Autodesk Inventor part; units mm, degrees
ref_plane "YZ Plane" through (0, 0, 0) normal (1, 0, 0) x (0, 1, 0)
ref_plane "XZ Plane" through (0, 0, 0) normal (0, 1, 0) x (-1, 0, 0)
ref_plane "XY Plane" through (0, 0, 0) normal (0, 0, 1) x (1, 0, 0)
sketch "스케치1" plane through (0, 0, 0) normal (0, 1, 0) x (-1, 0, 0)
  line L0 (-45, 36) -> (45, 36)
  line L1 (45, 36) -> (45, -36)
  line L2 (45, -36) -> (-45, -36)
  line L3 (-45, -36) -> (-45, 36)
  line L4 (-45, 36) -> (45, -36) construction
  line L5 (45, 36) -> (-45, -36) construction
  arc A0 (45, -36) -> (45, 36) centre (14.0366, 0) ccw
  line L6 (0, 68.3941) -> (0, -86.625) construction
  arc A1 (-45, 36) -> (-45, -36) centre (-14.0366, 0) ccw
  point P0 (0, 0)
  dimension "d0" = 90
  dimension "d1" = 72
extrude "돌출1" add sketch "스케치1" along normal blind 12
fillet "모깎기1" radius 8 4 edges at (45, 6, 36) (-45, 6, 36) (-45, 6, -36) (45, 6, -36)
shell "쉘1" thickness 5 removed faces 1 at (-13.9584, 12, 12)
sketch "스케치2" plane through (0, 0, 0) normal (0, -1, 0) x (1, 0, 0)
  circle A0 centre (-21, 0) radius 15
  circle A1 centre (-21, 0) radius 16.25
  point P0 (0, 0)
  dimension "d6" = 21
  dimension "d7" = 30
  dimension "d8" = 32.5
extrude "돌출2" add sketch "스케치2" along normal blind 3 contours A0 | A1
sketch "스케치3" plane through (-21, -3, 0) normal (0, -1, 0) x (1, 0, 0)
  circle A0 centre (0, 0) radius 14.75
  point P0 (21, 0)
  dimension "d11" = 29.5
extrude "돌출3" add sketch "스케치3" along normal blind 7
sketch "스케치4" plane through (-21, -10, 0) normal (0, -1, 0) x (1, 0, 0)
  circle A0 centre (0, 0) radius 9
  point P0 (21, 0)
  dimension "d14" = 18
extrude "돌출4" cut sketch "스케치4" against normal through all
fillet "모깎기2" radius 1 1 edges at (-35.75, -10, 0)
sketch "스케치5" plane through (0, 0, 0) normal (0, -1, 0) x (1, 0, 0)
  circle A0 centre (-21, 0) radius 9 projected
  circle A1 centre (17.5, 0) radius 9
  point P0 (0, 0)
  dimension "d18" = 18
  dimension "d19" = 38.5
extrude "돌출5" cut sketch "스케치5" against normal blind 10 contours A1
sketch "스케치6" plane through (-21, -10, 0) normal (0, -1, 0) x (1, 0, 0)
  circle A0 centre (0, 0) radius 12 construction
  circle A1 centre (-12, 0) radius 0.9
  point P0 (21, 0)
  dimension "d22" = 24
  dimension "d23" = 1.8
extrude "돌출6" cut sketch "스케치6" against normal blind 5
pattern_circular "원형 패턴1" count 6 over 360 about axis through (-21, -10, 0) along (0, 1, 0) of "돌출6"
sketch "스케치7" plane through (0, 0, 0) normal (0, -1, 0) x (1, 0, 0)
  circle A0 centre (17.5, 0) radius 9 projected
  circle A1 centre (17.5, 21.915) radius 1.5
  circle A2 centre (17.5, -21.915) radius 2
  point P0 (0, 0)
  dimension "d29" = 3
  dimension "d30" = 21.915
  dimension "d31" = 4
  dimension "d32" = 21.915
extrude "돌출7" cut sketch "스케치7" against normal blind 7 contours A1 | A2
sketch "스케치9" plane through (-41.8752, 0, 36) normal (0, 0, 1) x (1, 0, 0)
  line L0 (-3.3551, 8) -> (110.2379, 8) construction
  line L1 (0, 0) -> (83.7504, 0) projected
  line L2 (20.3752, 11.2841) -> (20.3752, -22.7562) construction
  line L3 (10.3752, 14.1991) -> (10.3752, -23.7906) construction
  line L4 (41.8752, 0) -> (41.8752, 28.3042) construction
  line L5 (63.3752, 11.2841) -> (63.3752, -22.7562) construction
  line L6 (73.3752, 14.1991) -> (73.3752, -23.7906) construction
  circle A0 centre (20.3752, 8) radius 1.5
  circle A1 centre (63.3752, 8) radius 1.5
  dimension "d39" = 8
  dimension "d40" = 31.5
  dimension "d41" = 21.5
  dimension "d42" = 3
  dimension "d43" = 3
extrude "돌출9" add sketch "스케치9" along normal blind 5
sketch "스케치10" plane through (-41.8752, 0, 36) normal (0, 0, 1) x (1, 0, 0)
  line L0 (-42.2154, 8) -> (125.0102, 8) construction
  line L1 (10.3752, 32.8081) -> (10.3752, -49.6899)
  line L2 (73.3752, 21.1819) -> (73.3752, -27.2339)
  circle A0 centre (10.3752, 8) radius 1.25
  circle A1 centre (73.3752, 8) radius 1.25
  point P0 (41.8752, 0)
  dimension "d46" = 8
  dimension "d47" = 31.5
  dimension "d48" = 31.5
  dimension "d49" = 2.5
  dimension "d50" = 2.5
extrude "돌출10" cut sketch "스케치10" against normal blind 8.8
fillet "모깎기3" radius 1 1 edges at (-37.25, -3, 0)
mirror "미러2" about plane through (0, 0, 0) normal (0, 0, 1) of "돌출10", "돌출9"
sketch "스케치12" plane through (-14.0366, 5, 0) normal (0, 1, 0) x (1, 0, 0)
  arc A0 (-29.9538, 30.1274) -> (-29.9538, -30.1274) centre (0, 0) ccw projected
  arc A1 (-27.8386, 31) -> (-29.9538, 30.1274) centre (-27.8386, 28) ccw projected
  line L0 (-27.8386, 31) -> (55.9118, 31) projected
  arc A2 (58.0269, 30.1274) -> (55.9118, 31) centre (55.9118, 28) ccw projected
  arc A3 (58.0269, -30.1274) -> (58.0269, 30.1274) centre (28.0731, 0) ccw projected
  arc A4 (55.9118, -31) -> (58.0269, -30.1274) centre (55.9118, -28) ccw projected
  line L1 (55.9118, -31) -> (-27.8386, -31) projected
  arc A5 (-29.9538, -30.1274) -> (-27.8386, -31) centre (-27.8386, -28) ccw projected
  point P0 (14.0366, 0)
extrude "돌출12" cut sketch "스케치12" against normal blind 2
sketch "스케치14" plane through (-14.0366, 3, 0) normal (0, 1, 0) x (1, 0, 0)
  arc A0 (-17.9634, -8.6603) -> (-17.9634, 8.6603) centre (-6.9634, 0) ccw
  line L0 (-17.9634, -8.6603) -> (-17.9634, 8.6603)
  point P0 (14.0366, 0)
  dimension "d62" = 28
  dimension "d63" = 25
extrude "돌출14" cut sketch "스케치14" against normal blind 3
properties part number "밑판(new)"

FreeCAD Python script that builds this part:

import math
import FreeCAD as App
import Part
import Sketcher
from FreeCAD import Vector


def edges_at(feature, points):
    """Names of the edges that pass closest to the given points."""
    edges = feature.Shape.Edges
    near = lambda p: min(range(len(edges)), key=lambda i: edges[i].distToShape(Part.Vertex(*p))[0])
    return sorted({f"Edge{near(p) + 1}" for p in points})


def faces_at(feature, points):
    """Names of the faces that lie closest to the given points."""
    faces = feature.Shape.Faces
    near = lambda p: min(range(len(faces)), key=lambda i: faces[i].distToShape(Part.Vertex(*p))[0])
    return sorted({f"Face{near(p) + 1}" for p in points})

doc = App.newDocument("Part")
body = doc.addObject("PartDesign::Body", "Body")

sketch1 = body.newObject("Sketcher::SketchObject", "Sketch")
sketch1.AttachmentSupport = (doc.getObject("XZ_Plane"), [""])
sketch1.MapMode = "FlatFace"
sketch1.addGeometry([
    Part.LineSegment(Vector(-45, 36, 0), Vector(45, 36, 0)),
    Part.ArcOfCircle(Part.Circle(Vector(14, 0, 0), Vector(0, 0, 1), 47), math.radians(-49), math.radians(49)),
    Part.LineSegment(Vector(45, -36, 0), Vector(-45, -36, 0)),
    Part.ArcOfCircle(Part.Circle(Vector(-14, 0, 0), Vector(0, 0, 1), 47), math.radians(131), math.radians(229)),
], False)
sketch1.addConstraint([
    Sketcher.Constraint("Coincident", 0, 2, 1, 2),
    Sketcher.Constraint("Coincident", 1, 1, 2, 1),
    Sketcher.Constraint("Coincident", 2, 2, 3, 2),
    Sketcher.Constraint("Coincident", 3, 1, 0, 1),
    Sketcher.Constraint("Horizontal", 0),
    Sketcher.Constraint("Horizontal", 2),
    Sketcher.Constraint("Equal", 1, 3),
    Sketcher.Constraint("Symmetric", 1, 3, 3, 3, -1, 1),
    Sketcher.Constraint("Symmetric", 0, 2, 1, 1, -1),
    Sketcher.Constraint("DistanceX", 0, 1, 0, 2, 90.0),
    Sketcher.Constraint("DistanceY", 1, 1, 0, 2, 72.0),
    Sketcher.Constraint("Radius", 1, 47.484),
])
pad1 = body.newObject("PartDesign::Pad", "Pad")
pad1.Profile = sketch1
pad1.Length = 12
pad1.Reversed = True
doc.recompute()

fillet = body.newObject("PartDesign::Fillet", "Fillet")
fillet.Base = (pad1, edges_at(pad1, [
    (45, 6, 36),
    (-45, 6, 36),
    (-45, 6, -36),
    (45, 6, -36),
]))
fillet.Radius = 8
doc.recompute()

thickness = body.newObject("PartDesign::Thickness", "Thickness")
thickness.Base = (fillet, faces_at(fillet, [(-13.958, 12, 12)]))
thickness.Value = 5
thickness.Reversed = True
thickness.Join = "Intersection"

sketch2 = body.newObject("Sketcher::SketchObject", "Sketch001")
sketch2.AttachmentSupport = (doc.getObject("XZ_Plane"), [""])
sketch2.MapMode = "FlatFace"
sketch2.addGeometry(Part.Circle(Vector(-21, 0, 0), Vector(0, 0, 1), 16), False)
sketch2.addConstraint([
    Sketcher.Constraint("PointOnObject", 0, 3, -1),
    Sketcher.Constraint("Diameter", 0, 32.5),
    Sketcher.Constraint("DistanceX", 0, 3, -1, 1, 21.0),
])
pad2 = body.newObject("PartDesign::Pad", "Pad001")
pad2.Profile = sketch2
pad2.Length = 3

sketch3 = body.newObject("Sketcher::SketchObject", "Sketch002")
sketch3.AttachmentSupport = (doc.getObject("XZ_Plane"), [""])
sketch3.MapMode = "FlatFace"
sketch3.AttachmentOffset = App.Placement(Vector(0, 0, 3), App.Rotation())
sketch3.addGeometry(Part.Circle(Vector(-21, 0, 0), Vector(0, 0, 1), 15), False)
sketch3.addConstraint([
    Sketcher.Constraint("PointOnObject", 0, 3, -1),
    Sketcher.Constraint("Diameter", 0, 29.5),
    Sketcher.Constraint("DistanceX", 0, 3, -1, 1, 21.0),
])
pad3 = body.newObject("PartDesign::Pad", "Pad002")
pad3.Profile = sketch3
pad3.Length = 7

sketch4 = body.newObject("Sketcher::SketchObject", "Sketch003")
sketch4.AttachmentSupport = (doc.getObject("XZ_Plane"), [""])
sketch4.MapMode = "FlatFace"
sketch4.AttachmentOffset = App.Placement(Vector(0, 0, 10), App.Rotation())
sketch4.addGeometry(Part.Circle(Vector(-21, 0, 0), Vector(0, 0, 1), 9), False)
sketch4.addConstraint([
    Sketcher.Constraint("PointOnObject", 0, 3, -1),
    Sketcher.Constraint("Diameter", 0, 18.0),
    Sketcher.Constraint("DistanceX", 0, 3, -1, 1, 21.0),
])
pocket1 = body.newObject("PartDesign::Pocket", "Pocket")
pocket1.Profile = sketch4
pocket1.Type = "ThroughAll"
doc.recompute()

fillet2 = body.newObject("PartDesign::Fillet", "Fillet001")
fillet2.Base = (pocket1, edges_at(pocket1, [(-35.75, -10, 0)]))
fillet2.Radius = 1

sketch5 = body.newObject("Sketcher::SketchObject", "Sketch004")
sketch5.AttachmentSupport = (doc.getObject("XZ_Plane"), [""])
sketch5.MapMode = "FlatFace"
sketch5.addGeometry(Part.Circle(Vector(18, 0, 0), Vector(0, 0, 1), 9), False)
sketch5.addConstraint([
    Sketcher.Constraint("PointOnObject", 0, 3, -1),
    Sketcher.Constraint("Diameter", 0, 18.0),
    Sketcher.Constraint("DistanceX", -1, 1, 0, 3, 17.5),
])
pocket2 = body.newObject("PartDesign::Pocket", "Pocket001")
pocket2.Profile = sketch5
pocket2.Length = 10

sketch6 = body.newObject("Sketcher::SketchObject", "Sketch005")
sketch6.AttachmentSupport = (doc.getObject("XZ_Plane"), [""])
sketch6.MapMode = "FlatFace"
sketch6.AttachmentOffset = App.Placement(Vector(0, 0, 10), App.Rotation())
sketch6.addGeometry(Part.Circle(Vector(-33, 0, 0), Vector(0, 0, 1), 0.9), False)
sketch6.addConstraint([
    Sketcher.Constraint("PointOnObject", 0, 3, -1),
    Sketcher.Constraint("Diameter", 0, 1.8),
    Sketcher.Constraint("DistanceX", 0, 3, -1, 1, 33.0),
])
pocket3 = body.newObject("PartDesign::Pocket", "Pocket002")
pocket3.Profile = sketch6
pocket3.Length = 5
doc.recompute()

datumline = body.newObject("PartDesign::Line", "DatumLine")
datumline.Placement = App.Placement(Vector(-21, 0, 0), App.Rotation(Vector(0, 0, 1), Vector(0, 1, 0)))
polarpattern = body.newObject("PartDesign::PolarPattern", "PolarPattern")
polarpattern.Originals = [pocket3]
polarpattern.Axis = (datumline, [""])
polarpattern.Angle = 360
polarpattern.Occurrences = 6
body.Tip = polarpattern

sketch7 = body.newObject("Sketcher::SketchObject", "Sketch006")
sketch7.AttachmentSupport = (doc.getObject("XZ_Plane"), [""])
sketch7.MapMode = "FlatFace"
sketch7.addGeometry([
    Part.Circle(Vector(17.5, 21.9, 0), Vector(0, 0, 1), 1.5),
    Part.Circle(Vector(17.5, -21.9, 0), Vector(0, 0, 1), 2),
], False)
sketch7.addConstraint([
    Sketcher.Constraint("Symmetric", 0, 3, 1, 3, -1),
    Sketcher.Constraint("Diameter", 0, 3.0),
    Sketcher.Constraint("Diameter", 1, 4.0),
    Sketcher.Constraint("DistanceY", -1, 1, 0, 3, 21.915),
    Sketcher.Constraint("DistanceX", -1, 1, 0, 3, 17.5),
])
pocket4 = body.newObject("PartDesign::Pocket", "Pocket003")
pocket4.Profile = sketch7
pocket4.Length = 7

sketch8 = body.newObject("Sketcher::SketchObject", "Sketch007")
sketch8.AttachmentSupport = (doc.getObject("XY_Plane"), [""])
sketch8.MapMode = "FlatFace"
sketch8.AttachmentOffset = App.Placement(Vector(0, 0, 36), App.Rotation())
sketch8.addGeometry([
    Part.Circle(Vector(-21.5, 8, 0), Vector(0, 0, 1), 1.5),
    Part.Circle(Vector(21.5, 8, 0), Vector(0, 0, 1), 1.5),
], False)
sketch8.addConstraint([
    Sketcher.Constraint("Equal", 0, 1),
    Sketcher.Constraint("Symmetric", 0, 3, 1, 3, -2),
    Sketcher.Constraint("Diameter", 0, 3.0),
    Sketcher.Constraint("DistanceY", -1, 1, 0, 3, 8.0),
    Sketcher.Constraint("DistanceX", 0, 3, -1, 1, 21.5),
])
pad4 = body.newObject("PartDesign::Pad", "Pad003")
pad4.Profile = sketch8
pad4.Length = 5

sketch9 = body.newObject("Sketcher::SketchObject", "Sketch008")
sketch9.AttachmentSupport = (doc.getObject("XY_Plane"), [""])
sketch9.MapMode = "FlatFace"
sketch9.AttachmentOffset = App.Placement(Vector(0, 0, 36), App.Rotation())
sketch9.addGeometry([
    Part.Circle(Vector(-31.5, 8, 0), Vector(0, 0, 1), 1.2),
    Part.Circle(Vector(31.5, 8, 0), Vector(0, 0, 1), 1.2),
], False)
sketch9.addConstraint([
    Sketcher.Constraint("Equal", 0, 1),
    Sketcher.Constraint("Symmetric", 0, 3, 1, 3, -2),
    Sketcher.Constraint("Diameter", 0, 2.5),
    Sketcher.Constraint("DistanceY", -1, 1, 0, 3, 8.0),
    Sketcher.Constraint("DistanceX", 0, 3, -1, 1, 31.5),
])
pocket5 = body.newObject("PartDesign::Pocket", "Pocket004")
pocket5.Profile = sketch9
pocket5.Length = 8.8
doc.recompute()

fillet3 = body.newObject("PartDesign::Fillet", "Fillet002")
fillet3.Base = (pocket5, edges_at(pocket5, [(-37.25, -3, 0)]))
fillet3.Radius = 1
doc.recompute()

mirrored = body.newObject("PartDesign::Mirrored", "Mirrored")
mirrored.Originals = [pocket5, pad4]
mirrored.MirrorPlane = (doc.getObject("XY_Plane"), [""])
body.Tip = mirrored

sketch10 = body.newObject("Sketcher::SketchObject", "Sketch009")
sketch10.AttachmentSupport = (doc.getObject("XZ_Plane"), [""])
sketch10.MapMode = "FlatFace"
sketch10.AttachmentOffset = App.Placement(Vector(0, 0, -5), App.Rotation())
sketch10.addGeometry([
    Part.ArcOfCircle(Part.Circle(Vector(-41.9, -28, 0), Vector(0, 0, 1), 3), math.radians(-135), math.radians(-90)),
    Part.ArcOfCircle(Part.Circle(Vector(-14, 0, 0), Vector(0, 0, 1), 42.5), math.radians(135), math.radians(225)),
    Part.ArcOfCircle(Part.Circle(Vector(-41.9, 28, 0), Vector(0, 0, 1), 3), math.radians(90), math.radians(135)),
    Part.LineSegment(Vector(-41.9, 31, 0), Vector(41.9, 31, 0)),
    Part.ArcOfCircle(Part.Circle(Vector(41.9, 28, 0), Vector(0, 0, 1), 3), math.radians(45), math.radians(90)),
    Part.ArcOfCircle(Part.Circle(Vector(14, 0, 0), Vector(0, 0, 1), 42.5), math.radians(-45), math.radians(45)),
    Part.ArcOfCircle(Part.Circle(Vector(41.9, -28, 0), Vector(0, 0, 1), 3), math.radians(-90), math.radians(-45)),
    Part.LineSegment(Vector(41.9, -31, 0), Vector(-41.9, -31, 0)),
], False)
sketch10.addConstraint([
    Sketcher.Constraint("Tangent", 0, 1, 1, 2),
    Sketcher.Constraint("Tangent", 1, 1, 2, 2),
    Sketcher.Constraint("Tangent", 2, 1, 3, 1),
    Sketcher.Constraint("Tangent", 3, 2, 4, 2),
    Sketcher.Constraint("Tangent", 4, 1, 5, 2),
    Sketcher.Constraint("Tangent", 5, 1, 6, 2),
    Sketcher.Constraint("Tangent", 6, 1, 7, 1),
    Sketcher.Constraint("Tangent", 7, 2, 0, 2),
    Sketcher.Constraint("Horizontal", 3),
    Sketcher.Constraint("Horizontal", 7),
    Sketcher.Constraint("Equal", 0, 2),
    Sketcher.Constraint("Equal", 2, 4),
    Sketcher.Constraint("Equal", 1, 5),
    Sketcher.Constraint("Equal", 4, 6),
    Sketcher.Constraint("Symmetric", 0, 3, 4, 3, -1, 1),
    Sketcher.Constraint("Symmetric", 1, 3, 5, 3, -2),
    Sketcher.Constraint("Radius", 0, 3.0),
    Sketcher.Constraint("DistanceY", 0, 3, -1, 1, 28.0),
    Sketcher.Constraint("Radius", 1, 42.484),
    Sketcher.Constraint("DistanceX", 3, 1, 3, 2, 83.7504),
])
pocket6 = body.newObject("PartDesign::Pocket", "Pocket005")
pocket6.Profile = sketch10
pocket6.Length = 2
pocket6.Reversed = True

sketch11 = body.newObject("Sketcher::SketchObject", "Sketch010")
sketch11.AttachmentSupport = (doc.getObject("XZ_Plane"), [""])
sketch11.MapMode = "FlatFace"
sketch11.AttachmentOffset = App.Placement(Vector(0, 0, -3), App.Rotation())
sketch11.addGeometry([
    Part.LineSegment(Vector(-32, -9, 0), Vector(-32, 9, 0)),
    Part.ArcOfCircle(Part.Circle(Vector(-21, 0, 0), Vector(0, 0, 1), 14), math.radians(-142), math.radians(142)),
], False)
sketch11.addConstraint([
    Sketcher.Constraint("Coincident", 0, 1, 1, 1),
    Sketcher.Constraint("Coincident", 1, 2, 0, 2),
    Sketcher.Constraint("Vertical", 0),
    Sketcher.Constraint("PointOnObject", 1, 3, -1),
    Sketcher.Constraint("Radius", 1, 14.0),
    Sketcher.Constraint("DistanceX", 1, 3, -1, 1, 21.0),
    Sketcher.Constraint("DistanceX", 0, 1, -1, 1, 32.0),
])
pocket7 = body.newObject("PartDesign::Pocket", "Pocket006")
pocket7.Profile = sketch11
pocket7.Length = 3
pocket7.Reversed = True

doc.recompute()
